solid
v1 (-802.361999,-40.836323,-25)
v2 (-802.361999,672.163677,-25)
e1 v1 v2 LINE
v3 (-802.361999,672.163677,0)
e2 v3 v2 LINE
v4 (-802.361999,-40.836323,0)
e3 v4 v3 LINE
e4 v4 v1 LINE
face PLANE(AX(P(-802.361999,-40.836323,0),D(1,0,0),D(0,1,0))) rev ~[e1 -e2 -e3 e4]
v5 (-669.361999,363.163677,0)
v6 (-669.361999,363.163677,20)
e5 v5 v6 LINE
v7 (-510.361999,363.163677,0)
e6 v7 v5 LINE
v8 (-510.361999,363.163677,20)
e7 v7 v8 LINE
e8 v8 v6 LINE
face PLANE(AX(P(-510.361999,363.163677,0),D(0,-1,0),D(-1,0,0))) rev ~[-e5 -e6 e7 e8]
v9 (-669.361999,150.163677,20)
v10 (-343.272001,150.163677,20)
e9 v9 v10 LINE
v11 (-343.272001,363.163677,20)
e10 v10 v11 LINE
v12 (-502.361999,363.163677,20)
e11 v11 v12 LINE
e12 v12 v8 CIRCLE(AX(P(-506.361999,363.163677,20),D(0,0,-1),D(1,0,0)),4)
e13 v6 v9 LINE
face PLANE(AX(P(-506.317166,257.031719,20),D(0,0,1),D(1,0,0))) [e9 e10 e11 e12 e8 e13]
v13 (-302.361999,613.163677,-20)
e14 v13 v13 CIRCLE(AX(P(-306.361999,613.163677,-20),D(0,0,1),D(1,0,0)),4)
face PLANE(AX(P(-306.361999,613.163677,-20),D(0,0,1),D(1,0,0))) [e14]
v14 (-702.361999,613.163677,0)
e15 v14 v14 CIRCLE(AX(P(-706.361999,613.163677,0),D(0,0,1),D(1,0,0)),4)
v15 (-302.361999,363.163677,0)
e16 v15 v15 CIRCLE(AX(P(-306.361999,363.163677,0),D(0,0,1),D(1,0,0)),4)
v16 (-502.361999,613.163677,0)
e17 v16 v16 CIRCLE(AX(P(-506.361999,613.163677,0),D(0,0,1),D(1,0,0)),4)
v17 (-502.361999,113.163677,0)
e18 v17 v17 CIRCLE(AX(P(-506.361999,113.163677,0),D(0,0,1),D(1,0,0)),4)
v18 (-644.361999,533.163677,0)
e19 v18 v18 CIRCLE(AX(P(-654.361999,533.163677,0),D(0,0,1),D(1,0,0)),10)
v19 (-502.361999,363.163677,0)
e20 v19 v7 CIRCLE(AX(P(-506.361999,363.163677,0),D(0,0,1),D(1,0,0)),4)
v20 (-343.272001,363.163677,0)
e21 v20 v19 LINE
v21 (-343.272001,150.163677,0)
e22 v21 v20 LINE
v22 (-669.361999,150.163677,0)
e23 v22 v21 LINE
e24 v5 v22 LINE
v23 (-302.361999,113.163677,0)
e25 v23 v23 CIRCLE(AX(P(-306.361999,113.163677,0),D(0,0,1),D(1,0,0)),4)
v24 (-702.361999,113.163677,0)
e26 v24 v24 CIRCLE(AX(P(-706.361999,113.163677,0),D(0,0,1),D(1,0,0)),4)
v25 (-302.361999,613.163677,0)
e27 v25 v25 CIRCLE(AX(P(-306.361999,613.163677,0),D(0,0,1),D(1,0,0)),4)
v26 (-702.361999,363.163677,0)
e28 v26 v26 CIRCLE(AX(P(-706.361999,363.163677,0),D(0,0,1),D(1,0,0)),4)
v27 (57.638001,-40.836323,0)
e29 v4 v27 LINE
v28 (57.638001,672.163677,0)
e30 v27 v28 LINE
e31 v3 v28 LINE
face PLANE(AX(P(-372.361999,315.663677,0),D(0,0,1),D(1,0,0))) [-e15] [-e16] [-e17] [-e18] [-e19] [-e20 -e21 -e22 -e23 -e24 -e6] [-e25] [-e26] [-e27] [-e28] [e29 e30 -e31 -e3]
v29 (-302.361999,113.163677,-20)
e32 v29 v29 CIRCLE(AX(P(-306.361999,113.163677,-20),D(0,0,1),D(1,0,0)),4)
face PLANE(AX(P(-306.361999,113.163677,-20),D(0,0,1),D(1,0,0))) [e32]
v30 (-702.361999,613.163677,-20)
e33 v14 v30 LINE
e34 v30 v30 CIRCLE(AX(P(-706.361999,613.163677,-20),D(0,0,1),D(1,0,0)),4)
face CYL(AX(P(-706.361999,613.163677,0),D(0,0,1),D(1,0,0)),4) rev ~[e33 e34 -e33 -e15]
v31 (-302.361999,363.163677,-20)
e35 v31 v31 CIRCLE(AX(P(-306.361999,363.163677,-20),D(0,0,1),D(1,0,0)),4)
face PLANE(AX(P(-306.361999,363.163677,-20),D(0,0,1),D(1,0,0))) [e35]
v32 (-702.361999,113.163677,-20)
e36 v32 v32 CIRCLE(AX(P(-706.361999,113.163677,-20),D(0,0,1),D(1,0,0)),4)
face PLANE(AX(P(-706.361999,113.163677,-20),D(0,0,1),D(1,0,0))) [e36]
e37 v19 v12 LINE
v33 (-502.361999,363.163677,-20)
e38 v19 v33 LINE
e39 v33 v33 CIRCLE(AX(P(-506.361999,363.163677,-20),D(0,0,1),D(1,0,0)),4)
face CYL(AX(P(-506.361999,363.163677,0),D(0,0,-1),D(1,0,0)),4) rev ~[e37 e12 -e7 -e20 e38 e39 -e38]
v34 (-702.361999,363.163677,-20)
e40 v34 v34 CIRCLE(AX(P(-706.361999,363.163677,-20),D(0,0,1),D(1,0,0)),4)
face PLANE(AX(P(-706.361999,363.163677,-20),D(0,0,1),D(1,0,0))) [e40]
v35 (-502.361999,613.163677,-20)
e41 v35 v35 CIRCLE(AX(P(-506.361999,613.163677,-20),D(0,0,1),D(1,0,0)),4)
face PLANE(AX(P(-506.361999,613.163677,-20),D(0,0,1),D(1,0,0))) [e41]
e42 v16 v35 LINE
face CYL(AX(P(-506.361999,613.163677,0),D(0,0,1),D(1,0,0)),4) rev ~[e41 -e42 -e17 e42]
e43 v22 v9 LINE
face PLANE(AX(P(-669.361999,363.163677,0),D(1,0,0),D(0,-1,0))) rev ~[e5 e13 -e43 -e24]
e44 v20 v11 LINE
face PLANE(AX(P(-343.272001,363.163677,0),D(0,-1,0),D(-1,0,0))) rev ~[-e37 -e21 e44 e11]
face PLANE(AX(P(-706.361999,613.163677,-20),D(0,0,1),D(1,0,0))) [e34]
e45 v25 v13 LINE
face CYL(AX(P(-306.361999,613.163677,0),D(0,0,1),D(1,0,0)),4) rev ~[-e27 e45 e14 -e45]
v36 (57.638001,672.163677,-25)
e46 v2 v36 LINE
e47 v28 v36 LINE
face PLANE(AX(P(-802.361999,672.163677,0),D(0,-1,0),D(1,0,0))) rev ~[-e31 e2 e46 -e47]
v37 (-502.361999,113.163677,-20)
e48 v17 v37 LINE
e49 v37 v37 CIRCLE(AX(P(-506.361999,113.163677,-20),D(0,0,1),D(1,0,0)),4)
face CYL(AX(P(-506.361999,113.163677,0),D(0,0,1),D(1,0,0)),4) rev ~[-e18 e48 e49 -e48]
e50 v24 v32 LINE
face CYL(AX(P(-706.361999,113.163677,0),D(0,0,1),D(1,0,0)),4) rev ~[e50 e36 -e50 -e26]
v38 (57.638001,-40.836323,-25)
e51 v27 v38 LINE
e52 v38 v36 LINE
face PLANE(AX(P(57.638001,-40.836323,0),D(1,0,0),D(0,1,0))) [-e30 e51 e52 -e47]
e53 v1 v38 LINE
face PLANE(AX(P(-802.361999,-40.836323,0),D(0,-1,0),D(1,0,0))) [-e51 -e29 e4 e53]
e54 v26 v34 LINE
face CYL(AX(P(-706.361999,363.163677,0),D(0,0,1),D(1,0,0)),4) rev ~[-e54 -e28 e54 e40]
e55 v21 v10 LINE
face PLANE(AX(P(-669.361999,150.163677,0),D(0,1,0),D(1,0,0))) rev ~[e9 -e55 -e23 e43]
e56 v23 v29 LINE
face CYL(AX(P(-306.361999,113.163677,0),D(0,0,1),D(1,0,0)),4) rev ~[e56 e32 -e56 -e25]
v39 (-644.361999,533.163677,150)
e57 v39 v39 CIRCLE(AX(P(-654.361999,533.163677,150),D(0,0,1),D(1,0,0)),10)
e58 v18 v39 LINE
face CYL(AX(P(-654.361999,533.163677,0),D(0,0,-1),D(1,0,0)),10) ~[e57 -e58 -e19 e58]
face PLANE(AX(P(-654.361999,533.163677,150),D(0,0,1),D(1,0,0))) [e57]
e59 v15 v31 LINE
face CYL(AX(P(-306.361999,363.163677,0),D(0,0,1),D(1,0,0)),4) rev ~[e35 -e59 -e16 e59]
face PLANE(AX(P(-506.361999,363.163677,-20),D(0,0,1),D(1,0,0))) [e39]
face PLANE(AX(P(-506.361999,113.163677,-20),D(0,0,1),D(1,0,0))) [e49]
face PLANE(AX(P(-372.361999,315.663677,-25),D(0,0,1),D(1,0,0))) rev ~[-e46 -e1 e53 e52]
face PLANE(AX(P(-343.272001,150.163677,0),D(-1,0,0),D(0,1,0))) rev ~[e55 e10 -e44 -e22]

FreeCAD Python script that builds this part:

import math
import FreeCAD as App
import Part
import Sketcher
from FreeCAD import Vector

doc = App.newDocument("Part")
body = doc.addObject("PartDesign::Body", "Body")

# Sketch on XY plane
sketch1 = body.newObject("Sketcher::SketchObject", "Sketch")
sketch1.AttachmentSupport = (doc.getObject("XY_Plane"), [""])
sketch1.MapMode = "FlatFace"
sketch1.addGeometry([
    Part.LineSegment(Vector(-802, 672, 0), Vector(-802, -41, 0)),
    Part.LineSegment(Vector(-802, -41, 0), Vector(58, -41, 0)),
    Part.LineSegment(Vector(58, -41, 0), Vector(58, 672, 0)),
    Part.LineSegment(Vector(58, 672, 0), Vector(-802, 672, 0)),
], False)
sketch1.addConstraint([
    Sketcher.Constraint("Coincident", 0, 2, 1, 1),
    Sketcher.Constraint("Coincident", 1, 2, 2, 1),
    Sketcher.Constraint("Coincident", 2, 2, 3, 1),
    Sketcher.Constraint("Coincident", 3, 2, 0, 1),
    Sketcher.Constraint("Vertical", 0),
    Sketcher.Constraint("Horizontal", 1),
    Sketcher.Constraint("Vertical", 2),
    Sketcher.Constraint("Horizontal", 3),
    Sketcher.Constraint("DistanceX", 1, 1, 1, 2, 860.0),
    Sketcher.Constraint("DistanceY", 0, 2, 0, 1, 713.0),
    Sketcher.Constraint("DistanceX", 0, 2, -1, 1, 802.361999),
    Sketcher.Constraint("DistanceY", 0, 2, -1, 1, 40.836323),
])
pad1 = body.newObject("PartDesign::Pad", "Pad")
pad1.Profile = sketch1
pad1.Length = 25
pad1.Reversed = True

# Sketch on XY plane
sketch2 = body.newObject("Sketcher::SketchObject", "Sketch001")
sketch2.AttachmentSupport = (doc.getObject("XY_Plane"), [""])
sketch2.MapMode = "FlatFace"
sketch2.addGeometry([
    Part.Circle(Vector(-706.4, 613.2, 0), Vector(0, 0, 1), 4),  # 0
    Part.Circle(Vector(-506.4, 613.2, 0), Vector(0, 0, 1), 4),  # 1
    Part.Circle(Vector(-306.4, 613.2, 0), Vector(0, 0, 1), 4),  # 2
    Part.Circle(Vector(-706.4, 363.2, 0), Vector(0, 0, 1), 4),  # 3
    Part.Circle(Vector(-506.4, 363.2, 0), Vector(0, 0, 1), 4),  # 4
    Part.Circle(Vector(-306.4, 363.2, 0), Vector(0, 0, 1), 4),  # 5
    Part.Circle(Vector(-706.4, 113.2, 0), Vector(0, 0, 1), 4),  # 6
    Part.Circle(Vector(-506.4, 113.2, 0), Vector(0, 0, 1), 4),  # 7
    Part.Circle(Vector(-306.4, 113.2, 0), Vector(0, 0, 1), 4),  # 8
], False)
sketch2.addConstraint([
    Sketcher.Constraint("Equal", 0, 1),
    Sketcher.Constraint("Equal", 1, 2),
    Sketcher.Constraint("Equal", 2, 3),
    Sketcher.Constraint("Equal", 3, 4),
    Sketcher.Constraint("Equal", 4, 5),
    Sketcher.Constraint("Equal", 5, 6),
    Sketcher.Constraint("Equal", 6, 7),
    Sketcher.Constraint("Equal", 7, 8),
    Sketcher.Constraint("Horizontal", 0, 3, 1, 3),
    Sketcher.Constraint("Horizontal", 1, 3, 2, 3),
    Sketcher.Constraint("Horizontal", 3, 3, 4, 3),
    Sketcher.Constraint("Horizontal", 4, 3, 5, 3),
    Sketcher.Constraint("Horizontal", 6, 3, 7, 3),
    Sketcher.Constraint("Horizontal", 7, 3, 8, 3),
    Sketcher.Constraint("Vertical", 0, 3, 3, 3),
    Sketcher.Constraint("Vertical", 1, 3, 4, 3),
    Sketcher.Constraint("Vertical", 2, 3, 5, 3),
    Sketcher.Constraint("Vertical", 3, 3, 6, 3),
    Sketcher.Constraint("Vertical", 4, 3, 7, 3),
    Sketcher.Constraint("Vertical", 5, 3, 8, 3),
    Sketcher.Constraint("Diameter", 0, 8.0),
    Sketcher.Constraint("DistanceX", 0, 3, 1, 3, 200.0),
    Sketcher.Constraint("DistanceX", 1, 3, 2, 3, 200.0),
    Sketcher.Constraint("DistanceY", 3, 3, 0, 3, 250.0),
    Sketcher.Constraint("DistanceY", 6, 3, 3, 3, 250.0),
    Sketcher.Constraint("DistanceX", 0, 3, -1, 1, 706.361999),
    Sketcher.Constraint("DistanceY", -1, 1, 0, 3, 613.163677),
])
pocket1 = body.newObject("PartDesign::Pocket", "Pocket")
pocket1.Profile = sketch2
pocket1.Length = 20

# Sketch on XY plane
sketch3 = body.newObject("Sketcher::SketchObject", "Sketch002")
sketch3.AttachmentSupport = (doc.getObject("XY_Plane"), [""])
sketch3.MapMode = "FlatFace"
sketch3.addGeometry([
    Part.LineSegment(Vector(-669.4, 363.2, 0), Vector(-669.4, 150.2, 0)),  # 0
    Part.LineSegment(Vector(-669.4, 150.2, 0), Vector(-343.3, 150.2, 0)),  # 1
    Part.LineSegment(Vector(-343.3, 150.2, 0), Vector(-343.3, 363.2, 0)),  # 2
    Part.LineSegment(Vector(-343.3, 363.2, 0), Vector(-502.4, 363.2, 0)),  # 3
    Part.ArcOfCircle(Part.Circle(Vector(-506.4, 363.2, 0), Vector(0, 0, 1), 4), math.radians(180), math.radians(360)),  # 4
    Part.LineSegment(Vector(-510.4, 363.2, 0), Vector(-669.4, 363.2, 0)),  # 5
], False)
sketch3.addConstraint([
    Sketcher.Constraint("Coincident", 0, 2, 1, 1),
    Sketcher.Constraint("Coincident", 1, 2, 2, 1),
    Sketcher.Constraint("Coincident", 2, 2, 3, 1),
    Sketcher.Constraint("Coincident", 3, 2, 4, 2),
    Sketcher.Constraint("Coincident", 4, 1, 5, 1),
    Sketcher.Constraint("Coincident", 5, 2, 0, 1),
    Sketcher.Constraint("Vertical", 0),
    Sketcher.Constraint("Horizontal", 1),
    Sketcher.Constraint("Vertical", 2),
    Sketcher.Constraint("Horizontal", 3),
    Sketcher.Constraint("Horizontal", 5),
    Sketcher.Constraint("Horizontal", 4, 3, 2, 2),
    Sketcher.Constraint("Horizontal", 3, 2, 4, 1),
    Sketcher.Constraint("Radius", 4, 4.0),
    Sketcher.Constraint("DistanceX", 5, 2, 5, 1, 159.0),
    Sketcher.Constraint("DistanceY", 0, 2, 0, 1, 213.0),
    Sketcher.Constraint("DistanceX", 1, 1, 1, 2, 326.089998),
    Sketcher.Constraint("DistanceX", 4, 3, -1, 1, 506.361999),
    Sketcher.Constraint("DistanceY", -1, 1, 4, 3, 363.163677),
])
pad2 = body.newObject("PartDesign::Pad", "Pad001")
pad2.Profile = sketch3
pad2.Length = 20

# Sketch on XY plane
sketch4 = body.newObject("Sketcher::SketchObject", "Sketch003")
sketch4.AttachmentSupport = (doc.getObject("XY_Plane"), [""])
sketch4.MapMode = "FlatFace"
sketch4.addGeometry(Part.Circle(Vector(-654, 533, 0), Vector(0, 0, 1), 10), False)
sketch4.addConstraint([
    Sketcher.Constraint("Diameter", 0, 20.0),
    Sketcher.Constraint("DistanceX", 0, 3, -1, 1, 654.361999),
    Sketcher.Constraint("DistanceY", -1, 1, 0, 3, 533.163677),
])
pad3 = body.newObject("PartDesign::Pad", "Pad002")
pad3.Profile = sketch4
pad3.Length = 150

doc.recompute()
